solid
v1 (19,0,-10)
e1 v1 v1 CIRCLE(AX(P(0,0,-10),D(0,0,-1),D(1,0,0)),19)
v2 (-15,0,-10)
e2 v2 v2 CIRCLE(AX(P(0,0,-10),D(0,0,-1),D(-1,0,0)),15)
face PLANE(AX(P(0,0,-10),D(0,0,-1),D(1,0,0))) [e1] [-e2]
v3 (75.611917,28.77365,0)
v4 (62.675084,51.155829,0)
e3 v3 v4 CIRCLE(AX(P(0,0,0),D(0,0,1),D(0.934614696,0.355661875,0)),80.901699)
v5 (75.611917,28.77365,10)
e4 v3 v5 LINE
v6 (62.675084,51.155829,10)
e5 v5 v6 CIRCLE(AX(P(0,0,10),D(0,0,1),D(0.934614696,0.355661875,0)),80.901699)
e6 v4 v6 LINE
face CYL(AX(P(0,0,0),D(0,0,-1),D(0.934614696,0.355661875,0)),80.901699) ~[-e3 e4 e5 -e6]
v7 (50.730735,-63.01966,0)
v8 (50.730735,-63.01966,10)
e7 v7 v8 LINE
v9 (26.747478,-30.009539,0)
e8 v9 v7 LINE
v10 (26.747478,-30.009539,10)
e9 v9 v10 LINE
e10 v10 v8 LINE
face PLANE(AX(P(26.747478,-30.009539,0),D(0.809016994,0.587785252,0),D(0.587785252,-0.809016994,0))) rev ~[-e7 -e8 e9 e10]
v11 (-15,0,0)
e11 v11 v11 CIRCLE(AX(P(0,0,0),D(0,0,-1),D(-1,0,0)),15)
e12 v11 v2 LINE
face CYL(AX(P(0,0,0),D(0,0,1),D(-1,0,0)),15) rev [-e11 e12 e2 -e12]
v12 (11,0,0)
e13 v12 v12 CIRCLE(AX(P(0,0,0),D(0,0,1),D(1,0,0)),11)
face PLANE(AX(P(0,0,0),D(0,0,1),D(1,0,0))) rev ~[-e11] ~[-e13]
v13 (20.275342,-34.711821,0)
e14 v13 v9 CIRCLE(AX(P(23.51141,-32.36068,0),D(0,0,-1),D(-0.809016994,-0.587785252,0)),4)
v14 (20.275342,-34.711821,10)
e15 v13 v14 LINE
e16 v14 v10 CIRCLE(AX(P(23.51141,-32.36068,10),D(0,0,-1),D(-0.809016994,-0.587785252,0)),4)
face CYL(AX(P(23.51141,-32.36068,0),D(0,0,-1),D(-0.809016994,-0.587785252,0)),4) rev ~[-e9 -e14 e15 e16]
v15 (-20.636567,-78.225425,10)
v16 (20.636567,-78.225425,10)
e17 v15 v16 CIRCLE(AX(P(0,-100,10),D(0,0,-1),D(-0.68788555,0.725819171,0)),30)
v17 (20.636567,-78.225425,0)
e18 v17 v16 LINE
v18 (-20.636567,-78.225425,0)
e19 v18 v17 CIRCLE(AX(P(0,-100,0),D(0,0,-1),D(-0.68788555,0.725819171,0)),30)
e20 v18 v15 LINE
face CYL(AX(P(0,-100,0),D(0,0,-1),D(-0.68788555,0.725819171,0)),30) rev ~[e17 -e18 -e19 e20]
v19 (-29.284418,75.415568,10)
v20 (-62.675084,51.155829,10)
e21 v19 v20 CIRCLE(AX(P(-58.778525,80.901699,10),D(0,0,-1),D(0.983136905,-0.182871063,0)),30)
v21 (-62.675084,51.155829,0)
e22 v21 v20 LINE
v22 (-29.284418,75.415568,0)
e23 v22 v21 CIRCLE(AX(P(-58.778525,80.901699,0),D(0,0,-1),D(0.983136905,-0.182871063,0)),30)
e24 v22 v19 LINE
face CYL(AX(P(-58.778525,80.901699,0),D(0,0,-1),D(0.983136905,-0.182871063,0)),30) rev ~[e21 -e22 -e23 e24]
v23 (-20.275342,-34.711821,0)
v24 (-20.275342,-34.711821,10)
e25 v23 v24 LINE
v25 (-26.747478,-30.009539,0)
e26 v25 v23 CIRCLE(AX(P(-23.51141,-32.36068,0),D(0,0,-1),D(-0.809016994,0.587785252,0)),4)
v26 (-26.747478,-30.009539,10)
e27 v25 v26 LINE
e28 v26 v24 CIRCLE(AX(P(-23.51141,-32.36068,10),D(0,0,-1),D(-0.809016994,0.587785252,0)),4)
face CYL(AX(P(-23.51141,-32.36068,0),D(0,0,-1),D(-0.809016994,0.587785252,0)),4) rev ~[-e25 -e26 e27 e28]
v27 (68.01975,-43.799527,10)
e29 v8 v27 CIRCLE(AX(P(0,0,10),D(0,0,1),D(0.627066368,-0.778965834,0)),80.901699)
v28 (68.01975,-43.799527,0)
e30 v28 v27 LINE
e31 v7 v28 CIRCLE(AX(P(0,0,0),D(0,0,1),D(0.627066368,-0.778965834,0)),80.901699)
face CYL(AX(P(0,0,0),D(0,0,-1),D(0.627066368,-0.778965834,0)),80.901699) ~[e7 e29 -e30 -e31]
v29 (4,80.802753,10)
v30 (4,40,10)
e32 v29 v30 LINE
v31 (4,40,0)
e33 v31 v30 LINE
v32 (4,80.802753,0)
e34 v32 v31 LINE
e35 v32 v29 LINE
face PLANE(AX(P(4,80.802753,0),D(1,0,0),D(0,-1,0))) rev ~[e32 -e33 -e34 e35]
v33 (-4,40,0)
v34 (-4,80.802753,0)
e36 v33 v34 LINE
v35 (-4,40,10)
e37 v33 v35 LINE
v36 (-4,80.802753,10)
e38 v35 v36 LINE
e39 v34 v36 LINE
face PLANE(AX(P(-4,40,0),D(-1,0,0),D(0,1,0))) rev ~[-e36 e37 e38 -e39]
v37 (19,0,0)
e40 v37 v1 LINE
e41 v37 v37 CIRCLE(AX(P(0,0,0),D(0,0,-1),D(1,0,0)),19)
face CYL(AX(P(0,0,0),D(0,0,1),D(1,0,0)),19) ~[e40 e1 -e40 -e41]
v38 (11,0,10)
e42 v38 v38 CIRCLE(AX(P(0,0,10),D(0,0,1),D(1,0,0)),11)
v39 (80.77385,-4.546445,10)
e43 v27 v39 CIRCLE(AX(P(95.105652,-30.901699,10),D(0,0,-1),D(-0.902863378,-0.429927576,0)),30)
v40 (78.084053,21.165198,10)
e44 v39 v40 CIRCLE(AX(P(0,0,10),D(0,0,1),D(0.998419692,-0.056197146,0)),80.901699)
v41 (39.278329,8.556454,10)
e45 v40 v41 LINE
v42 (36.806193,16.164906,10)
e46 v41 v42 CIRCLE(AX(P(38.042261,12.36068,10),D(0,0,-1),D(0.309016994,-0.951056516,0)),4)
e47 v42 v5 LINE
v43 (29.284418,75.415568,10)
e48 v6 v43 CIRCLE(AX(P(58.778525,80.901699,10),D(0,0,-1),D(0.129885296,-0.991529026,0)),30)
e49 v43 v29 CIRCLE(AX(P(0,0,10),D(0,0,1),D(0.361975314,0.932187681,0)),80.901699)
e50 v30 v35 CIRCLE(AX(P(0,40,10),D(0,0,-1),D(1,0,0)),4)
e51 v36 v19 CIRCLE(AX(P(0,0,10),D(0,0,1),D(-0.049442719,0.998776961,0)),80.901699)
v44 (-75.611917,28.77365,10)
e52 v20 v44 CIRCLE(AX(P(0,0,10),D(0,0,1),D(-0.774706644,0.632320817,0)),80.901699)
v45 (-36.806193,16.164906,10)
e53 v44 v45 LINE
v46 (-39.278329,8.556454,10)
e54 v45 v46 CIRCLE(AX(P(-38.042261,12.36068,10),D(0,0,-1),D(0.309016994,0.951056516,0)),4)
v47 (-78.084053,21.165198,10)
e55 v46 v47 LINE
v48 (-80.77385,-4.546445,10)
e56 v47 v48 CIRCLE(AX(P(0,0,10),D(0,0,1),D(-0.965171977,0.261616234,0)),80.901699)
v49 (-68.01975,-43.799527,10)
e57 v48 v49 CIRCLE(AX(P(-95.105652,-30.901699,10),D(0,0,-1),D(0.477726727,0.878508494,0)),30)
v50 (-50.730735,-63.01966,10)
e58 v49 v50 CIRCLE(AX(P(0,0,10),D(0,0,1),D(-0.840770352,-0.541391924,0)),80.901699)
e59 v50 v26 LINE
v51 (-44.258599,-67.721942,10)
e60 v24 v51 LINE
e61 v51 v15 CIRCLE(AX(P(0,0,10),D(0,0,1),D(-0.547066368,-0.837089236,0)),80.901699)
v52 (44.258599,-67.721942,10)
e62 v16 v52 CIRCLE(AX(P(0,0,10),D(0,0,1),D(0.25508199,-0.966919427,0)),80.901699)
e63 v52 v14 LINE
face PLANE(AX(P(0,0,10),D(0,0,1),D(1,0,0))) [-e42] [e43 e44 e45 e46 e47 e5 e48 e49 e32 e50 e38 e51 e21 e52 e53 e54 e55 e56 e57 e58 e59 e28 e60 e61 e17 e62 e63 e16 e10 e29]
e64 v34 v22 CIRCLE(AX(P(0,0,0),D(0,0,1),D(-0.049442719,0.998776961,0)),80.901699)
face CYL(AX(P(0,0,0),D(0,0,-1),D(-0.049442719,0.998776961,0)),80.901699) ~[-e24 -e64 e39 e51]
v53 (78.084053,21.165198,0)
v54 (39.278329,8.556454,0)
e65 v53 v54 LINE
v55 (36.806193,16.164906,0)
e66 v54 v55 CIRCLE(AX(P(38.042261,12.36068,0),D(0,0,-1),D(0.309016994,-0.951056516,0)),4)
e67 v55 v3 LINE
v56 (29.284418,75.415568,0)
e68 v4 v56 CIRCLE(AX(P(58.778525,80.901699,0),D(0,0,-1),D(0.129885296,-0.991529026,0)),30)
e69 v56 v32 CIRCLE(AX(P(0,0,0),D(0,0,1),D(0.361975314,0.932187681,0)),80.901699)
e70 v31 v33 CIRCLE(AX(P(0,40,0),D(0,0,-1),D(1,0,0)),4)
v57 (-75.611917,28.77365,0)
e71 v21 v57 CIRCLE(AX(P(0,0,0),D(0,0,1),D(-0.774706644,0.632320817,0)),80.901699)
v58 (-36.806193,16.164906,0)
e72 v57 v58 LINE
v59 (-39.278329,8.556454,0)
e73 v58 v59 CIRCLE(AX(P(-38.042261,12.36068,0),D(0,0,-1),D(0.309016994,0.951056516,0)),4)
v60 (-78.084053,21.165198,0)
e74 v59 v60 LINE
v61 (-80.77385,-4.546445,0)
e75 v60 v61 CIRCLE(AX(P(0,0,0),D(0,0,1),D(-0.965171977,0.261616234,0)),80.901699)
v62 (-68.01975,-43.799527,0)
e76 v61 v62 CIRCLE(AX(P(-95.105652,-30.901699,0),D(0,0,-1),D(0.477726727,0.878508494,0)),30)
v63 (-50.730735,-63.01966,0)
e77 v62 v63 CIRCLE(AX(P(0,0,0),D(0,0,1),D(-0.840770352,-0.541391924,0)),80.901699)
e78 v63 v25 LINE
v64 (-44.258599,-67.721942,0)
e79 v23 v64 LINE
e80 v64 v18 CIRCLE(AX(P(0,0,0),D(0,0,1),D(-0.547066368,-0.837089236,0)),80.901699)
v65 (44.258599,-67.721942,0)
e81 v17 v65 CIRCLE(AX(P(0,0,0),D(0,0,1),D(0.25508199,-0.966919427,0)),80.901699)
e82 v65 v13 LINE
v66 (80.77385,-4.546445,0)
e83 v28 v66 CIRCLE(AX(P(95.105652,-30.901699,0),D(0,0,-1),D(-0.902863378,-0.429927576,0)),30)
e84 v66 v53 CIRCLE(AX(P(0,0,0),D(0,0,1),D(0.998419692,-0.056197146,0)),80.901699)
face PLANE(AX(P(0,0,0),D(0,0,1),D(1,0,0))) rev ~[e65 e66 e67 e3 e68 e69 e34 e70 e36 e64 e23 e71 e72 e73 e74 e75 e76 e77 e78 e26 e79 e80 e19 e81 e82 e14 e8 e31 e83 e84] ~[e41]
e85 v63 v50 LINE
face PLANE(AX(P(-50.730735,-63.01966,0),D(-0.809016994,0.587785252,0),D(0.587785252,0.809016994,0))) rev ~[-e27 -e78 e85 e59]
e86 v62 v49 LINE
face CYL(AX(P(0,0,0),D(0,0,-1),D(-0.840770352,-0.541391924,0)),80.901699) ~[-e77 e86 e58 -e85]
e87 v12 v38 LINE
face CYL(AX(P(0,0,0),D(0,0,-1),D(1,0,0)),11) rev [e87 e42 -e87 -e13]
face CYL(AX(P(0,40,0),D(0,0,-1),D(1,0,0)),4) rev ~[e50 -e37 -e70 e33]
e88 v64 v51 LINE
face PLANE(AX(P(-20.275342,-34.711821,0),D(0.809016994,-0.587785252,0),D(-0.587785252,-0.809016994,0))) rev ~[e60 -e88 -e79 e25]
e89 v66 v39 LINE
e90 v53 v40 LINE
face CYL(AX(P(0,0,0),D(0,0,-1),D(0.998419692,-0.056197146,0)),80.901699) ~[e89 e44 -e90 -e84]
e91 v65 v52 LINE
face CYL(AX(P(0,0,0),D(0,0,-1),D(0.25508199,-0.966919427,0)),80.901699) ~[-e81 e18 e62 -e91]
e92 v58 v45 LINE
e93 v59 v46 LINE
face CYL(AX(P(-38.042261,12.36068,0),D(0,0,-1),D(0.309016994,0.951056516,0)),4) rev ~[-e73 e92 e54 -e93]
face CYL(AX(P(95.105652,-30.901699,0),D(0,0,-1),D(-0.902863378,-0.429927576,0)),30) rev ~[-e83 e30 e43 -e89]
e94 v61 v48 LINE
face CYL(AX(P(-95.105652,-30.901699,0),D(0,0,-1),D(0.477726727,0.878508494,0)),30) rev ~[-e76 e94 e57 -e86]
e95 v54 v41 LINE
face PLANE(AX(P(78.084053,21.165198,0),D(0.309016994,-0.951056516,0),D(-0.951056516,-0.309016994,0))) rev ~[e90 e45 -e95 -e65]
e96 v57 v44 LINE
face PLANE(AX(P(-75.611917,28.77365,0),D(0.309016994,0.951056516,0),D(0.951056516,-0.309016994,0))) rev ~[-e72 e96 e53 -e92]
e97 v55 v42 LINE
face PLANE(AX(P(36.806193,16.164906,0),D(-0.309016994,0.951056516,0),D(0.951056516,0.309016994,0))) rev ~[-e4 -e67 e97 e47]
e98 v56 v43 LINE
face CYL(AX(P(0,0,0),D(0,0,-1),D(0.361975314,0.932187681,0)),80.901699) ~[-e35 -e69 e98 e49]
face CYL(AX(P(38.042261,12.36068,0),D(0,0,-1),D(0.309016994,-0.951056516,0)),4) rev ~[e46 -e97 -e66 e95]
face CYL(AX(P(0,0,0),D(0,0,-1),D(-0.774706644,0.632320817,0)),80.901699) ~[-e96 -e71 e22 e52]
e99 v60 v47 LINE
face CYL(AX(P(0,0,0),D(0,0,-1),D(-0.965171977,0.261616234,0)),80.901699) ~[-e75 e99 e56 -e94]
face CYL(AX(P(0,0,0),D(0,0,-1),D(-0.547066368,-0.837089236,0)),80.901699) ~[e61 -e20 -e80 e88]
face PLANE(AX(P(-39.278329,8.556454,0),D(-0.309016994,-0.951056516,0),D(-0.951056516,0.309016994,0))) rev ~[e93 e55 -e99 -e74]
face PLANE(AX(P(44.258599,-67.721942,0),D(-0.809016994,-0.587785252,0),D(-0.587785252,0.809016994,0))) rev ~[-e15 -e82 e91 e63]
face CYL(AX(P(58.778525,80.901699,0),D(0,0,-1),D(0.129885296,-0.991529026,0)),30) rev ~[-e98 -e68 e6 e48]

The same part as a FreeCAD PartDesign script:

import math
import FreeCAD as App
import Part
import Sketcher

V = App.Vector
Q = App.Units.Quantity

doc = App.newDocument("Part")
params = doc.addObject("Spreadsheet::Sheet", "Params")
for row, (alias, value) in enumerate([
    ("sketch1_diameter", "22 mm"),
    ("sketch1_radius", "30 mm"),
    ("sketch1_radius2", "4 mm"),
    ("pad1_length", "10 mm"),
    ("sketch2_diameter", "38 mm"),
    ("sketch2_diameter2", "30 mm"),
    ("pad2_length", "10 mm"),
], start=1):
    params.set(f"A{row}", alias)
    params.set(f"B{row}", "=" + value)
    params.setAlias(f"B{row}", alias)

body = doc.addObject("PartDesign::Body", "Body")

sketch1 = doc.addObject("Sketcher::SketchObject", "Sketch")
body.addObject(sketch1)
sketch1.AttachmentSupport = (doc.XY_Plane, [""])
sketch1.MapMode = "FlatFace"
sketch1.addGeometry(Part.LineSegment(V(26.7, -30, 0), V(50.7, -63, 0)), False)
sketch1.addGeometry(Part.ArcOfCircle(Part.Circle(V(0, 0, 0), V(0, 0, 1), 80.9), math.radians(-51.17), math.radians(-32.78)), False)
sketch1.addGeometry(Part.ArcOfCircle(Part.Circle(V(95.1, -30.9, 0), V(0, 0, 1), 30), math.radians(119), math.radians(205)), False)
sketch1.addGeometry(Part.ArcOfCircle(Part.Circle(V(0, 0, 0), V(0, 0, 1), 80.9), math.radians(-3.22), math.radians(15.17)), False)
sketch1.addGeometry(Part.LineSegment(V(78.1, 21.2, 0), V(39.3, 8.6, 0)), False)
sketch1.addGeometry(Part.ArcOfCircle(Part.Circle(V(38, 12.4, 0), V(0, 0, 1), 4), math.radians(108), math.radians(288)), False)
sketch1.addGeometry(Part.LineSegment(V(36.8, 16.2, 0), V(75.6, 28.8, 0)), False)
sketch1.addGeometry(Part.ArcOfCircle(Part.Circle(V(0, 0, 0), V(0, 0, 1), 80.9), math.radians(20.83), math.radians(39.22)), False)
sketch1.addGeometry(Part.ArcOfCircle(Part.Circle(V(58.8, 80.9, 0), V(0, 0, 1), 30), math.radians(-169), math.radians(-83)), False)
sketch1.addGeometry(Part.ArcOfCircle(Part.Circle(V(0, 0, 0), V(0, 0, 1), 80.9), math.radians(68.78), math.radians(87.17)), False)
sketch1.addGeometry(Part.LineSegment(V(4, 80.8, 0), V(4, 40, 0)), False)
sketch1.addGeometry(Part.ArcOfCircle(Part.Circle(V(0, 40, 0), V(0, 0, 1), 4), math.radians(180), math.radians(360)), False)
sketch1.addGeometry(Part.LineSegment(V(-4, 40, 0), V(-4, 80.8, 0)), False)
sketch1.addGeometry(Part.ArcOfCircle(Part.Circle(V(0, 0, 0), V(0, 0, 1), 80.9), math.radians(92.83), math.radians(111.22)), False)
sketch1.addGeometry(Part.ArcOfCircle(Part.Circle(V(-58.8, 80.9, 0), V(0, 0, 1), 30), math.radians(-97), math.radians(-11)), False)
sketch1.addGeometry(Part.ArcOfCircle(Part.Circle(V(0, 0, 0), V(0, 0, 1), 80.9), math.radians(140.78), math.radians(159.17)), False)
sketch1.addGeometry(Part.LineSegment(V(-75.6, 28.8, 0), V(-36.8, 16.2, 0)), False)
sketch1.addGeometry(Part.ArcOfCircle(Part.Circle(V(-38, 12.4, 0), V(0, 0, 1), 4), math.radians(-108), math.radians(72)), False)
sketch1.addGeometry(Part.LineSegment(V(-39.3, 8.6, 0), V(-78.1, 21.2, 0)), False)
sketch1.addGeometry(Part.ArcOfCircle(Part.Circle(V(0, 0, 0), V(0, 0, 1), 80.9), math.radians(164.83), math.radians(183.22)), False)
sketch1.addGeometry(Part.ArcOfCircle(Part.Circle(V(-95.1, -30.9, 0), V(0, 0, 1), 30), math.radians(-25), math.radians(61)), False)
sketch1.addGeometry(Part.ArcOfCircle(Part.Circle(V(0, 0, 0), V(0, 0, 1), 80.9), math.radians(-147.22), math.radians(-128.83)), False)
sketch1.addGeometry(Part.LineSegment(V(-50.7, -63, 0), V(-26.7, -30, 0)), False)
sketch1.addGeometry(Part.ArcOfCircle(Part.Circle(V(-23.5, -32.4, 0), V(0, 0, 1), 4), math.radians(-36), math.radians(144)), False)
sketch1.addGeometry(Part.LineSegment(V(-20.3, -34.7, 0), V(-44.3, -67.7, 0)), False)
sketch1.addGeometry(Part.ArcOfCircle(Part.Circle(V(0, 0, 0), V(0, 0, 1), 80.9), math.radians(-123.17), math.radians(-104.78)), False)
sketch1.addGeometry(Part.ArcOfCircle(Part.Circle(V(0, -100, 0), V(0, 0, 1), 30), math.radians(47), math.radians(133)), False)
sketch1.addGeometry(Part.ArcOfCircle(Part.Circle(V(0, 0, 0), V(0, 0, 1), 80.9), math.radians(-75.22), math.radians(-56.83)), False)
sketch1.addGeometry(Part.LineSegment(V(44.3, -67.7, 0), V(20.3, -34.7, 0)), False)
sketch1.addGeometry(Part.ArcOfCircle(Part.Circle(V(23.5, -32.4, 0), V(0, 0, 1), 4), math.radians(36), math.radians(216)), False)
sketch1.addGeometry(Part.Circle(V(0, 0, 0), V(0, 0, 1), 11), False)
sketch1.addConstraint(Sketcher.Constraint("Coincident", 0, 2, 1, 1))
sketch1.addConstraint(Sketcher.Constraint("Coincident", 1, 2, 2, 2))
sketch1.addConstraint(Sketcher.Constraint("Coincident", 2, 1, 3, 1))
sketch1.addConstraint(Sketcher.Constraint("Coincident", 3, 2, 4, 1))
sketch1.addConstraint(Sketcher.Constraint("Tangent", 4, 2, 5, 2))
sketch1.addConstraint(Sketcher.Constraint("Tangent", 5, 1, 6, 1))
sketch1.addConstraint(Sketcher.Constraint("Coincident", 6, 2, 7, 1))
sketch1.addConstraint(Sketcher.Constraint("Coincident", 7, 2, 8, 2))
sketch1.addConstraint(Sketcher.Constraint("Coincident", 8, 1, 9, 1))
sketch1.addConstraint(Sketcher.Constraint("Coincident", 9, 2, 10, 1))
sketch1.addConstraint(Sketcher.Constraint("Tangent", 10, 2, 11, 2))
sketch1.addConstraint(Sketcher.Constraint("Tangent", 11, 1, 12, 1))
sketch1.addConstraint(Sketcher.Constraint("Coincident", 12, 2, 13, 1))
sketch1.addConstraint(Sketcher.Constraint("Coincident", 13, 2, 14, 2))
sketch1.addConstraint(Sketcher.Constraint("Coincident", 14, 1, 15, 1))
sketch1.addConstraint(Sketcher.Constraint("Coincident", 15, 2, 16, 1))
sketch1.addConstraint(Sketcher.Constraint("Tangent", 16, 2, 17, 2))
sketch1.addConstraint(Sketcher.Constraint("Tangent", 17, 1, 18, 1))
sketch1.addConstraint(Sketcher.Constraint("Coincident", 18, 2, 19, 1))
sketch1.addConstraint(Sketcher.Constraint("Coincident", 19, 2, 20, 2))
sketch1.addConstraint(Sketcher.Constraint("Coincident", 20, 1, 21, 1))
sketch1.addConstraint(Sketcher.Constraint("Coincident", 21, 2, 22, 1))
sketch1.addConstraint(Sketcher.Constraint("Tangent", 22, 2, 23, 2))
sketch1.addConstraint(Sketcher.Constraint("Tangent", 23, 1, 24, 1))
sketch1.addConstraint(Sketcher.Constraint("Coincident", 24, 2, 25, 1))
sketch1.addConstraint(Sketcher.Constraint("Coincident", 25, 2, 26, 2))
sketch1.addConstraint(Sketcher.Constraint("Coincident", 26, 1, 27, 1))
sketch1.addConstraint(Sketcher.Constraint("Coincident", 27, 2, 28, 1))
sketch1.addConstraint(Sketcher.Constraint("Tangent", 28, 2, 29, 2))
sketch1.addConstraint(Sketcher.Constraint("Tangent", 29, 1, 0, 1))
sketch1.addConstraint(Sketcher.Constraint("Vertical", 10))
sketch1.addConstraint(Sketcher.Constraint("Vertical", 12))
sketch1.addConstraint(Sketcher.Constraint("Coincident", 1, 3, -1, 1))
sketch1.addConstraint(Sketcher.Constraint("Coincident", 3, 3, -1, 1))
sketch1.addConstraint(Sketcher.Constraint("Coincident", 7, 3, -1, 1))
sketch1.addConstraint(Sketcher.Constraint("Coincident", 9, 3, -1, 1))
sketch1.addConstraint(Sketcher.Constraint("Coincident", 13, 3, -1, 1))
sketch1.addConstraint(Sketcher.Constraint("Coincident", 15, 3, -1, 1))
sketch1.addConstraint(Sketcher.Constraint("Coincident", 19, 3, -1, 1))
sketch1.addConstraint(Sketcher.Constraint("Coincident", 21, 3, -1, 1))
sketch1.addConstraint(Sketcher.Constraint("Coincident", 25, 3, -1, 1))
sketch1.addConstraint(Sketcher.Constraint("Coincident", 27, 3, -1, 1))
sketch1.addConstraint(Sketcher.Constraint("Coincident", 30, 3, -1, 1))
sketch1.addConstraint(Sketcher.Constraint("Equal", 1, 3))
sketch1.addConstraint(Sketcher.Constraint("Equal", 3, 7))
sketch1.addConstraint(Sketcher.Constraint("Equal", 2, 8))
sketch1.addConstraint(Sketcher.Constraint("Equal", 7, 9))
sketch1.addConstraint(Sketcher.Constraint("Equal", 5, 11))
sketch1.addConstraint(Sketcher.Constraint("Equal", 9, 13))
sketch1.addConstraint(Sketcher.Constraint("Equal", 8, 14))
sketch1.addConstraint(Sketcher.Constraint("Equal", 13, 15))
sketch1.addConstraint(Sketcher.Constraint("Equal", 11, 17))
sketch1.addConstraint(Sketcher.Constraint("Equal", 15, 19))
sketch1.addConstraint(Sketcher.Constraint("Equal", 14, 20))
sketch1.addConstraint(Sketcher.Constraint("Equal", 19, 21))
sketch1.addConstraint(Sketcher.Constraint("Equal", 17, 23))
sketch1.addConstraint(Sketcher.Constraint("Equal", 21, 25))
sketch1.addConstraint(Sketcher.Constraint("Equal", 20, 26))
sketch1.addConstraint(Sketcher.Constraint("Equal", 25, 27))
sketch1.addConstraint(Sketcher.Constraint("Equal", 23, 29))
sketch1.addConstraint(Sketcher.Constraint("Symmetric", 8, 3, 14, 3, -2))
sketch1.addConstraint(Sketcher.Constraint("Symmetric", 5, 3, 17, 3, -2))
sketch1.addConstraint(Sketcher.Constraint("Symmetric", 2, 3, 20, 3, -2))
sketch1.addConstraint(Sketcher.Constraint("Symmetric", 23, 3, 29, 3, -2))
sketch1.addConstraint(Sketcher.Constraint("PointOnObject", 11, 3, -2))
sketch1.addConstraint(Sketcher.Constraint("PointOnObject", 26, 3, -2))
sketch1.addConstraint(Sketcher.Constraint("Parallel", 4, 6))
sketch1.addConstraint(Sketcher.Constraint("Parallel", 16, 18))
sketch1.addConstraint(Sketcher.Constraint("Parallel", 22, 24))
sketch1.addConstraint(Sketcher.Constraint("Parallel", 0, 28))
sketch1.addConstraint(Sketcher.Constraint("Horizontal", 6, 2, 15, 2))
sketch1.addConstraint(Sketcher.Constraint("Horizontal", 0, 2, 21, 2))
sketch1.addConstraint(Sketcher.Constraint("Equal", 0, 4))
sketch1.addConstraint(Sketcher.Constraint("Equal", 4, 6))
sketch1.addConstraint(Sketcher.Constraint("Equal", 22, 24))
sketch1.addConstraint(Sketcher.Constraint("Diameter", 30, 22.0))
sketch1.addConstraint(Sketcher.Constraint("Radius", 2, 30.0))
sketch1.addConstraint(Sketcher.Constraint("Radius", 5, 4.0))
sketch1.addConstraint(Sketcher.Constraint("Angle", 0, Q("-54 deg")))
sketch1.addConstraint(Sketcher.Constraint("Angle", 4, Q("-162 deg")))
sketch1.addConstraint(Sketcher.Constraint("DistanceY", -1, 1, 11, 3, 40.0))
sketch1.addConstraint(Sketcher.Constraint("DistanceY", 26, 3, -1, 1, 100.0))
sketch1.addConstraint(Sketcher.Constraint("Radius", 1, 80.901699))
sketch1.addConstraint(Sketcher.Constraint("DistanceY", 2, 3, -1, 1, 30.901699))
sketch1.addConstraint(Sketcher.Constraint("DistanceY", -1, 1, 8, 3, 80.901699))
sketch1.addConstraint(Sketcher.Constraint("DistanceX", 1, 2, 2, 3, 27.085901))
sketch1.addConstraint(Sketcher.Constraint("DistanceX", 15, 2, 13, 2, 46.327499))
sketch1.addConstraint(Sketcher.Constraint("DistanceX", -1, 1, 5, 3, 38.042261))
sketch1.setExpression("Constraints[75]", "Params.sketch1_diameter")
sketch1.setExpression("Constraints[76]", "Params.sketch1_radius")
sketch1.setExpression("Constraints[77]", "Params.sketch1_radius2")
pad1 = doc.addObject("PartDesign::Pad", "Pad")
body.addObject(pad1)
pad1.Profile = sketch1
pad1.setExpression("Length", "Params.pad1_length")

sketch2 = doc.addObject("Sketcher::SketchObject", "Sketch001")
body.addObject(sketch2)
sketch2.AttachmentSupport = (doc.XY_Plane, [""])
sketch2.MapMode = "FlatFace"
sketch2.addGeometry(Part.Circle(V(0, 0, 0), V(0, 0, 1), 19), False)
sketch2.addGeometry(Part.Circle(V(0, 0, 0), V(0, 0, 1), 15), False)
sketch2.addConstraint(Sketcher.Constraint("Coincident", 0, 3, -1, 1))
sketch2.addConstraint(Sketcher.Constraint("Coincident", 1, 3, -1, 1))
sketch2.addConstraint(Sketcher.Constraint("Diameter", 0, 38.0))
sketch2.addConstraint(Sketcher.Constraint("Diameter", 1, 30.0))
sketch2.setExpression("Constraints[2]", "Params.sketch2_diameter")
sketch2.setExpression("Constraints[3]", "Params.sketch2_diameter2")
pad2 = doc.addObject("PartDesign::Pad", "Pad001")
body.addObject(pad2)
pad2.Profile = sketch2
pad2.setExpression("Length", "Params.pad2_length")
pad2.Reversed = True

doc.recompute()
